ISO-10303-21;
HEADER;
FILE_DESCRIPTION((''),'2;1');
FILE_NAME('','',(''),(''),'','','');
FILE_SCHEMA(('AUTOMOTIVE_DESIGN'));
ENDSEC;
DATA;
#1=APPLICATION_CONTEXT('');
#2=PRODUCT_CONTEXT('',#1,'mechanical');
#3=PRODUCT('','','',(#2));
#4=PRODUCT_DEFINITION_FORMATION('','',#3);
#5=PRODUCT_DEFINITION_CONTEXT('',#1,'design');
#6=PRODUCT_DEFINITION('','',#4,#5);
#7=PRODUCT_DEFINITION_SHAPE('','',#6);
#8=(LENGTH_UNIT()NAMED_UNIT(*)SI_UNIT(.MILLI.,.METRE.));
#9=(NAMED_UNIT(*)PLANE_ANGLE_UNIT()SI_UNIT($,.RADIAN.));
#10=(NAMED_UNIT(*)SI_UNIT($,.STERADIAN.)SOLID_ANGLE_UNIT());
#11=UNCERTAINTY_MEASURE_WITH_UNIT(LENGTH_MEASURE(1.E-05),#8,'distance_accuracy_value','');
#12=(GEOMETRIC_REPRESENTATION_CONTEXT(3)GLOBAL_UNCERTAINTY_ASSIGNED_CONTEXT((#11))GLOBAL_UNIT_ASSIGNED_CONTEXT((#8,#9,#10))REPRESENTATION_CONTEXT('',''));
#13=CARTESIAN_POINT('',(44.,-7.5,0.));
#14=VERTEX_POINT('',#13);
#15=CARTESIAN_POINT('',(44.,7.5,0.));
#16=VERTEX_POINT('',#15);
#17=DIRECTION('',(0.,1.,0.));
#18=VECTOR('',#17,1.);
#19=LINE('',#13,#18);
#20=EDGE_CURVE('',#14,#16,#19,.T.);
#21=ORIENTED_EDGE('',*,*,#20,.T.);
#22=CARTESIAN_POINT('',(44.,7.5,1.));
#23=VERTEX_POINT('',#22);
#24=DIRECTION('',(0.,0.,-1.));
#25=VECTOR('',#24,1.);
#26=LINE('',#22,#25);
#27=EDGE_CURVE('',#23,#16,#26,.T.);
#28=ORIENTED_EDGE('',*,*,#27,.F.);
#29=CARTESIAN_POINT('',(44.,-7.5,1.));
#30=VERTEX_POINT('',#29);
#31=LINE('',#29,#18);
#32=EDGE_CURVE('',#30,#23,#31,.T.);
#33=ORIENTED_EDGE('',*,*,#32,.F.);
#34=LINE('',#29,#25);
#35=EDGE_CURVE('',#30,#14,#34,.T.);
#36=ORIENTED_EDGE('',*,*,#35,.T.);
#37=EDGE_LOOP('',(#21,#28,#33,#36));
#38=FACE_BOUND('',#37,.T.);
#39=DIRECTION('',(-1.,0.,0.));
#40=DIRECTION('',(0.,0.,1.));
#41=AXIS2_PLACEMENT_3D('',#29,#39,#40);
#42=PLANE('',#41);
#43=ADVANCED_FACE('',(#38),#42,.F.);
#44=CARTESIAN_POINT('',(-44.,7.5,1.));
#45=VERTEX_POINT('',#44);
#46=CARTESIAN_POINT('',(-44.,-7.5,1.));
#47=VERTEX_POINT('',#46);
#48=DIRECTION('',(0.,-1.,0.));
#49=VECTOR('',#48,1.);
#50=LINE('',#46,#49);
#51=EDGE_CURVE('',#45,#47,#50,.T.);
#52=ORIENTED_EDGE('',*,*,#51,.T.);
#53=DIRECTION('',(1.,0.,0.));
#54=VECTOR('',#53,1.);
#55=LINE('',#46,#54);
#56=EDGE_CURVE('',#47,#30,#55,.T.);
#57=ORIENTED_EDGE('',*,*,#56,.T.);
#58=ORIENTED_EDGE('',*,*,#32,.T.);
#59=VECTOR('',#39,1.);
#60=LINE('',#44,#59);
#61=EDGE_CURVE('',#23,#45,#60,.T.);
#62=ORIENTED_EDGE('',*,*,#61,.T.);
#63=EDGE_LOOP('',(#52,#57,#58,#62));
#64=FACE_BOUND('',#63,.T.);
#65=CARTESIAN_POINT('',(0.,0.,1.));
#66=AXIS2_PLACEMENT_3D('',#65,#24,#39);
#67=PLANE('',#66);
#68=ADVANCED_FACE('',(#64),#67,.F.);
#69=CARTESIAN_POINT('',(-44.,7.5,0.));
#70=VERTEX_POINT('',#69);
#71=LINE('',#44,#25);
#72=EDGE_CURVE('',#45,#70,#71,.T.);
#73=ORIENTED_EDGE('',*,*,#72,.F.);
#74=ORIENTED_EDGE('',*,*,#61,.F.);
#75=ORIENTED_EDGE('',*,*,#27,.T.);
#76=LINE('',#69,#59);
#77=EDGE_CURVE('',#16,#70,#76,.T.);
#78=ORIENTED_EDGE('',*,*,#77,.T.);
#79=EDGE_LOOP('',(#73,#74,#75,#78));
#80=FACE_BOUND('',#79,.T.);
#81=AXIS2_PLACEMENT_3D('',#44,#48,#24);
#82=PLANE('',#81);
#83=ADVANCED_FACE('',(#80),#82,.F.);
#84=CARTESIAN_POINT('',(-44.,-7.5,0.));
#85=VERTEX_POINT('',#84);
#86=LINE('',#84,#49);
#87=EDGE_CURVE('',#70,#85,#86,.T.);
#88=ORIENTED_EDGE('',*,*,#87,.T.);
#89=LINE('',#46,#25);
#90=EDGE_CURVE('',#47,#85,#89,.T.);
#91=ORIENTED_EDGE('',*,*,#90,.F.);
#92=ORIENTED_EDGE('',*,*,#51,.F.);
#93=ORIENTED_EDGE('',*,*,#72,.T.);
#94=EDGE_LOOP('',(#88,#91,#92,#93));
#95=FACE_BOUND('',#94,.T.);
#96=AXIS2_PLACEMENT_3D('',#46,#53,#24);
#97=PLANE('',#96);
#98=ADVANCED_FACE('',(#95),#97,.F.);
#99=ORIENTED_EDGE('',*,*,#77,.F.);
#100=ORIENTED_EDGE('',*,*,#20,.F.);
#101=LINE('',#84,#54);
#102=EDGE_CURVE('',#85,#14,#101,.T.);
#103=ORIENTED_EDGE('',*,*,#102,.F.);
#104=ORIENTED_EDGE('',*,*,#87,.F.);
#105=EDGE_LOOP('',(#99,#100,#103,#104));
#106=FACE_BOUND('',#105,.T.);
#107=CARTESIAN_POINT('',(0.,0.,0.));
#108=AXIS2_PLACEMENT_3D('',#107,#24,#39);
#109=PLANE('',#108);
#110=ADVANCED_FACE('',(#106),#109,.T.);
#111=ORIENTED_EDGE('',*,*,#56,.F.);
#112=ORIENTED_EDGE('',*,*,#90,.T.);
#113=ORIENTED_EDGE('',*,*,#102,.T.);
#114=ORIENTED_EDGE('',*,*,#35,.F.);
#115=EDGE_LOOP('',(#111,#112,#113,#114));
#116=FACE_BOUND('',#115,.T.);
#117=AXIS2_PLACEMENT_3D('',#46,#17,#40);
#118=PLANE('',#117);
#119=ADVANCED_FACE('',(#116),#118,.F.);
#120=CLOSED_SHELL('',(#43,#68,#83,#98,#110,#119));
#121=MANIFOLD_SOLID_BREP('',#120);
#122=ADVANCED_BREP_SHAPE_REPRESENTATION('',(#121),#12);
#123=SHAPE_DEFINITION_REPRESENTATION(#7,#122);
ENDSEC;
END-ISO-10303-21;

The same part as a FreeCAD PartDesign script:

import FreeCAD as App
import Part
import Sketcher
from FreeCAD import Vector
Q = App.Units.Quantity

doc = App.newDocument("Part")
body = doc.addObject("PartDesign::Body", "Body")

sketch1 = body.newObject("Sketcher::SketchObject", "Sketch")
sketch1.AttachmentSupport = (doc.getObject("XY_Plane"), [""])
sketch1.MapMode = "FlatFace"
sketch1.addGeometry([
    Part.LineSegment(Vector(-44, 7.5, 0), Vector(-44, -7.5, 0)),
    Part.LineSegment(Vector(-44, -7.5, 0), Vector(44, -7.5, 0)),
    Part.LineSegment(Vector(44, -7.5, 0), Vector(44, 7.5, 0)),
    Part.LineSegment(Vector(44, 7.5, 0), Vector(-44, 7.5, 0)),
], False)
sketch1.addConstraint([
    Sketcher.Constraint("Coincident", 0, 2, 1, 1),
    Sketcher.Constraint("Coincident", 1, 2, 2, 1),
    Sketcher.Constraint("Coincident", 2, 2, 3, 1),
    Sketcher.Constraint("Coincident", 3, 2, 0, 1),
    Sketcher.Constraint("Vertical", 0),
    Sketcher.Constraint("Horizontal", 1),
    Sketcher.Constraint("Vertical", 2),
    Sketcher.Constraint("Horizontal", 3),
    Sketcher.Constraint("Symmetric", 0, 2, 2, 2, -1, 1),
    Sketcher.Constraint("DistanceX", 1, 1, 1, 2, Q("88 mm")),
    Sketcher.Constraint("DistanceY", 0, 2, 0, 1, Q("15 mm")),
])
pad1 = body.newObject("PartDesign::Pad", "Pad")
pad1.Profile = sketch1
pad1.Length = 1

doc.recompute()
